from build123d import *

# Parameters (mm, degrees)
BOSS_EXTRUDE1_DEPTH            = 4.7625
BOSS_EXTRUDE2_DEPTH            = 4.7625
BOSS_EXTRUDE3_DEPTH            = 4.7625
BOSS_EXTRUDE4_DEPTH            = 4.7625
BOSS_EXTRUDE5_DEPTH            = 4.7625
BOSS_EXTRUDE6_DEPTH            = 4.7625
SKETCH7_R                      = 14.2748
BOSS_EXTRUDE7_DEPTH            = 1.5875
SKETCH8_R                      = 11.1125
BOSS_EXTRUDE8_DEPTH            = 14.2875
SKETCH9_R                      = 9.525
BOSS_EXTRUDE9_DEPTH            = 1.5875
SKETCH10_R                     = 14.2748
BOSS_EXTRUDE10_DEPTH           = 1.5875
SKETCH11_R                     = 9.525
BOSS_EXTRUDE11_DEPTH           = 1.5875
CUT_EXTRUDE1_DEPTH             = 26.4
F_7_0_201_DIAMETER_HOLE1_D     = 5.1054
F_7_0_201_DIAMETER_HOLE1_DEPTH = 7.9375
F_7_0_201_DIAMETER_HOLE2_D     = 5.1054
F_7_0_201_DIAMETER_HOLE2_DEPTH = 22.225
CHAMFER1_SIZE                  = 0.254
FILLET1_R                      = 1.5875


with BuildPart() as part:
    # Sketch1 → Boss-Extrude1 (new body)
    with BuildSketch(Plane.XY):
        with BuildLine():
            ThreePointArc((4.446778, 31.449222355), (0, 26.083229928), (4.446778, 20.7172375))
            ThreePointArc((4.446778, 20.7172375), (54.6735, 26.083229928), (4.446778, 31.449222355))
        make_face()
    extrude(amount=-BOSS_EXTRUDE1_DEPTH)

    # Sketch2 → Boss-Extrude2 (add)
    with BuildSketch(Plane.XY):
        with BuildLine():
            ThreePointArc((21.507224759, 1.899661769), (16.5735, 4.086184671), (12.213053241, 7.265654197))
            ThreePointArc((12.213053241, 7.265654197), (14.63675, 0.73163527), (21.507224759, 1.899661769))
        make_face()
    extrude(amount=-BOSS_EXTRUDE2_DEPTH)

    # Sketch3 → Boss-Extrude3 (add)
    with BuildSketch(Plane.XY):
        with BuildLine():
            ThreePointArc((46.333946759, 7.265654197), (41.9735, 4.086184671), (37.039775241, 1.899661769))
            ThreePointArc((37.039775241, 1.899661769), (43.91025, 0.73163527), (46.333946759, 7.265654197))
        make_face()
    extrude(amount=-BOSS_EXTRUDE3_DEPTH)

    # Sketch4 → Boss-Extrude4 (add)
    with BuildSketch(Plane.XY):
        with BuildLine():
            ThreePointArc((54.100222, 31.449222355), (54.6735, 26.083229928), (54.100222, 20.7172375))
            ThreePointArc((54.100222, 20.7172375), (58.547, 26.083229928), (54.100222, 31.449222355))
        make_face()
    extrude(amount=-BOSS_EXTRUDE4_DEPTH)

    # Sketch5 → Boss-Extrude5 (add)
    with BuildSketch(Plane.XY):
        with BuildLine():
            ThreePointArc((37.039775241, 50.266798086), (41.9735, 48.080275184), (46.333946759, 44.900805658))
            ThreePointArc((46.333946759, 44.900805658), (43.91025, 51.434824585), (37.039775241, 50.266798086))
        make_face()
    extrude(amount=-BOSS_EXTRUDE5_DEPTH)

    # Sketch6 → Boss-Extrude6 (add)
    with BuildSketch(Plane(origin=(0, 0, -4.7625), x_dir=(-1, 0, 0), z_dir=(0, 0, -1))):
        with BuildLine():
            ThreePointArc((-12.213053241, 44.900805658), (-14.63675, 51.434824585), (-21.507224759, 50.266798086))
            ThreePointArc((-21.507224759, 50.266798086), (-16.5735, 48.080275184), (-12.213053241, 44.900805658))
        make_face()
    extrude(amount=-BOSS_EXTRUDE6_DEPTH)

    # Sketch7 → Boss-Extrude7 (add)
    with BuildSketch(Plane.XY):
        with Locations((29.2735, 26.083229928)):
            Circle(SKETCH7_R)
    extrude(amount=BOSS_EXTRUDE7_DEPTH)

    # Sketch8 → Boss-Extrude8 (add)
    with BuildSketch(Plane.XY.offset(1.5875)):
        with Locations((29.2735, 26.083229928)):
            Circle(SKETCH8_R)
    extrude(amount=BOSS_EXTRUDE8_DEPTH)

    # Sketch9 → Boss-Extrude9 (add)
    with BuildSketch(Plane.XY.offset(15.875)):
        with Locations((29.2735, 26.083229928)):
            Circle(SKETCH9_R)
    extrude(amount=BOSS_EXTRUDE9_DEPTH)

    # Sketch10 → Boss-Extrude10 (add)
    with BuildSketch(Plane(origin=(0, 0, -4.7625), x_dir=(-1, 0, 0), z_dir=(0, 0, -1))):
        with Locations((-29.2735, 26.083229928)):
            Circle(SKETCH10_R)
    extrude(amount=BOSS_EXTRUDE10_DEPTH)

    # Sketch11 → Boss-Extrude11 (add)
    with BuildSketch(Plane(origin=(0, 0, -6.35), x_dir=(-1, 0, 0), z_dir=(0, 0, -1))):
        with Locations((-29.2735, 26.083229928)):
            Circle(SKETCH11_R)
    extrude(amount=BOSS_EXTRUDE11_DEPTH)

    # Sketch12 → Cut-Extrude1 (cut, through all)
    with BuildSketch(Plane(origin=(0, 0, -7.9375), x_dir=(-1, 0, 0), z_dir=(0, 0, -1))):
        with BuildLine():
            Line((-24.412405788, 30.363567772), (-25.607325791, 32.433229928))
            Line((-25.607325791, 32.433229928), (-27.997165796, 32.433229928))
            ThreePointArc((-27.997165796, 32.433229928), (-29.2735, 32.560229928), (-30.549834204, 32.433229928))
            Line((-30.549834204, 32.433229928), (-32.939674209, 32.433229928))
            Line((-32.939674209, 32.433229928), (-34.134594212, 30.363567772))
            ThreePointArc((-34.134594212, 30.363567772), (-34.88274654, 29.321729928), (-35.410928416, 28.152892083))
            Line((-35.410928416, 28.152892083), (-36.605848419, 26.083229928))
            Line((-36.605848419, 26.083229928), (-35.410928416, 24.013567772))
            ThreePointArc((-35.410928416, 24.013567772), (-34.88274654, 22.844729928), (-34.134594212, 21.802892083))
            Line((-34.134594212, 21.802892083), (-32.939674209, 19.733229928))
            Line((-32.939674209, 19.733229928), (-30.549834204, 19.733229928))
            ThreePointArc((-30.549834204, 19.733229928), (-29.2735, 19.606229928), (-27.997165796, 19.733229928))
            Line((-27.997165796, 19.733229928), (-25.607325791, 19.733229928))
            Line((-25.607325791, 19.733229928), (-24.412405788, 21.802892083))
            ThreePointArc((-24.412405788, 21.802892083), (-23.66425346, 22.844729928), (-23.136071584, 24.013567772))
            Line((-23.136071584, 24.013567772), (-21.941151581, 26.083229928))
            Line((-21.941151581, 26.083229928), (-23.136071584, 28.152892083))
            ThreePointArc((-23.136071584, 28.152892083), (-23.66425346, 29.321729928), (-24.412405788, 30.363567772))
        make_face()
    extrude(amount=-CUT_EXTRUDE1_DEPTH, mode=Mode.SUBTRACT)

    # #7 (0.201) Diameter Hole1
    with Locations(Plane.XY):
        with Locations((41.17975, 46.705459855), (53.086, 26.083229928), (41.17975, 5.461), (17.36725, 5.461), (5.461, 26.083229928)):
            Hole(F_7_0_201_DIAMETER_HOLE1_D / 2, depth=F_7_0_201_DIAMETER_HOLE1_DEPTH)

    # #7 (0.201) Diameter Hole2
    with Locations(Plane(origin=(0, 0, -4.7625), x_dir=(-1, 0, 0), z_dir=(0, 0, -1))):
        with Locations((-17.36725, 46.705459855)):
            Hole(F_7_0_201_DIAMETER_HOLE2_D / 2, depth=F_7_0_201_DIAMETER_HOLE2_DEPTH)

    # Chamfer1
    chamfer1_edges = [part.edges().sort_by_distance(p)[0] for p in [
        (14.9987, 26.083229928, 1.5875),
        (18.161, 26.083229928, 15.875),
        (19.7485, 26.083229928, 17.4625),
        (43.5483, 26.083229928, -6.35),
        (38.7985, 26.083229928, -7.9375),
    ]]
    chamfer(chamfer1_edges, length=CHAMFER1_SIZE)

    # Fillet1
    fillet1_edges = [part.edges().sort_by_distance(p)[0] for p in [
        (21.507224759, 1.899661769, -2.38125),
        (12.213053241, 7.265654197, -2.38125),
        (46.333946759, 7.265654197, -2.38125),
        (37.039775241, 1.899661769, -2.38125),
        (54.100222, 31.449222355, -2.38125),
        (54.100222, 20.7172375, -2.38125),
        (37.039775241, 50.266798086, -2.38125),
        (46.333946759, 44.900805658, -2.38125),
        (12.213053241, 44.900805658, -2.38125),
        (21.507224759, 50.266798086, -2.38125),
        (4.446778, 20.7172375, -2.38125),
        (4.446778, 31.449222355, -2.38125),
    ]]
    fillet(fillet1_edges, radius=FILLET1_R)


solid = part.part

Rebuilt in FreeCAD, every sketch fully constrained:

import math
import FreeCAD as App
import Part
import Sketcher
Q = App.Units.Quantity


def edges_at(feature, points):
    """Names of the edges that pass closest to the given points."""
    edges = feature.Shape.Edges
    near = lambda p: min(range(len(edges)), key=lambda i: edges[i].distToShape(Part.Vertex(*p))[0])
    return sorted({f"Edge{near(p) + 1}" for p in points})

doc = App.newDocument("Part")
body = doc.addObject("PartDesign::Body", "Body")

# Sketch on XY plane
sketch1 = doc.addObject("Sketcher::SketchObject", "Sketch")
body.addObject(sketch1)
sketch1.AttachmentSupport = (doc.XY_Plane, [""])
sketch1.MapMode = "FlatFace"
sketch1.addGeometry([
    Part.ArcOfCircle(Part.Circle(App.Vector(5, 26, 0), App.Vector(0, 0, 1), 5), math.radians(101), math.radians(259)),
    Part.ArcOfCircle(Part.Circle(App.Vector(29, 26, 0), App.Vector(0, 0, 1), 25), math.radians(-168), math.radians(168)),
], False)
sketch1.addConstraint([
    Sketcher.Constraint("Coincident", 0, 1, 1, 2),
    Sketcher.Constraint("Coincident", 1, 1, 0, 2),
    Sketcher.Constraint("Horizontal", 0, 3, 1, 3),
    Sketcher.Constraint("Radius", 1, Q("1 in")),
    Sketcher.Constraint("Radius", 0, Q("0.215 in")),
    Sketcher.Constraint("DistanceX", -1, 1, 0, 3, Q("0.215 in")),
    Sketcher.Constraint("DistanceX", 0, 3, 1, 3, Q("0.9375 in")),
    Sketcher.Constraint("DistanceY", -1, 1, 0, 3, 26.08323),
])
pad1 = doc.addObject("PartDesign::Pad", "Pad")
body.addObject(pad1)
pad1.Profile = sketch1
pad1.Length = Q("0.1875 in")
pad1.Reversed = True

# Sketch on XY plane
sketch2 = doc.addObject("Sketcher::SketchObject", "Sketch001")
body.addObject(sketch2)
sketch2.AttachmentSupport = (doc.XY_Plane, [""])
sketch2.MapMode = "FlatFace"
sketch2.addGeometry([
    Part.ArcOfCircle(Part.Circle(App.Vector(29, 26, 0), App.Vector(0, 0, 1), 25), math.radians(-132), math.radians(-108)),
    Part.ArcOfCircle(Part.Circle(App.Vector(17, 5, 0), App.Vector(0, 0, 1), 5), math.radians(161), math.radians(319)),
], False)
sketch2.addConstraint([
    Sketcher.Constraint("Coincident", 0, 1, 1, 1),
    Sketcher.Constraint("Coincident", 1, 2, 0, 2),
    Sketcher.Constraint("Radius", 0, Q("1 in")),
    Sketcher.Constraint("Radius", 1, Q("0.215 in")),
    Sketcher.Constraint("DistanceY", -1, 1, 1, 3, Q("0.215 in")),
    Sketcher.Constraint("DistanceX", 1, 3, 0, 3, Q("0.46875 in")),
    Sketcher.Constraint("DistanceX", -1, 1, 0, 3, Q("1.1525 in")),
    Sketcher.Constraint("DistanceY", -1, 1, 0, 3, 26.08323),
])
pad2 = doc.addObject("PartDesign::Pad", "Pad001")
body.addObject(pad2)
pad2.Profile = sketch2
pad2.Length = Q("0.1875 in")
pad2.Reversed = True

# Sketch on XY plane
sketch3 = doc.addObject("Sketcher::SketchObject", "Sketch002")
body.addObject(sketch3)
sketch3.AttachmentSupport = (doc.XY_Plane, [""])
sketch3.MapMode = "FlatFace"
sketch3.addGeometry([
    Part.ArcOfCircle(Part.Circle(App.Vector(29, 26, 0), App.Vector(0, 0, 1), 25), math.radians(-72), math.radians(-48)),
    Part.ArcOfCircle(Part.Circle(App.Vector(41, 5, 0), App.Vector(0, 0, 1), 5), math.radians(-139), math.radians(19)),
], False)
sketch3.addConstraint([
    Sketcher.Constraint("Coincident", 0, 1, 1, 1),
    Sketcher.Constraint("Coincident", 1, 2, 0, 2),
    Sketcher.Constraint("Radius", 0, Q("1 in")),
    Sketcher.Constraint("Radius", 1, Q("0.215 in")),
    Sketcher.Constraint("DistanceY", -1, 1, 1, 3, Q("0.215 in")),
    Sketcher.Constraint("DistanceX", 0, 3, 1, 3, Q("0.46875 in")),
    Sketcher.Constraint("DistanceX", -1, 1, 0, 3, Q("1.1525 in")),
    Sketcher.Constraint("DistanceY", -1, 1, 0, 3, 26.08323),
])
pad3 = doc.addObject("PartDesign::Pad", "Pad002")
body.addObject(pad3)
pad3.Profile = sketch3
pad3.Length = Q("0.1875 in")
pad3.Reversed = True

# Sketch on XY plane
sketch4 = doc.addObject("Sketcher::SketchObject", "Sketch003")
body.addObject(sketch4)
sketch4.AttachmentSupport = (doc.XY_Plane, [""])
sketch4.MapMode = "FlatFace"
sketch4.addGeometry([
    Part.ArcOfCircle(Part.Circle(App.Vector(29, 26, 0), App.Vector(0, 0, 1), 25), math.radians(-12), math.radians(12)),
    Part.ArcOfCircle(Part.Circle(App.Vector(53, 26, 0), App.Vector(0, 0, 1), 5), math.radians(-79), math.radians(79)),
], False)
sketch4.addConstraint([
    Sketcher.Constraint("Coincident", 0, 1, 1, 1),
    Sketcher.Constraint("Coincident", 1, 2, 0, 2),
    Sketcher.Constraint("Horizontal", 0, 3, 1, 3),
    Sketcher.Constraint("Radius", 0, Q("1 in")),
    Sketcher.Constraint("Radius", 1, Q("0.215 in")),
    Sketcher.Constraint("DistanceX", -1, 1, 1, 3, Q("2.09 in")),
    Sketcher.Constraint("DistanceX", 0, 3, 1, 3, Q("0.9375 in")),
    Sketcher.Constraint("DistanceY", -1, 1, 0, 3, 26.08323),
])
pad4 = doc.addObject("PartDesign::Pad", "Pad003")
body.addObject(pad4)
pad4.Profile = sketch4
pad4.Length = Q("0.1875 in")
pad4.Reversed = True

# Sketch on XY plane
sketch5 = doc.addObject("Sketcher::SketchObject", "Sketch004")
body.addObject(sketch5)
sketch5.AttachmentSupport = (doc.XY_Plane, [""])
sketch5.MapMode = "FlatFace"
sketch5.addGeometry([
    Part.ArcOfCircle(Part.Circle(App.Vector(29, 26, 0), App.Vector(0, 0, 1), 25), math.radians(48), math.radians(72)),
    Part.ArcOfCircle(Part.Circle(App.Vector(41, 47, 0), App.Vector(0, 0, 1), 5), math.radians(-19), math.radians(139)),
], False)
sketch5.addConstraint([
    Sketcher.Constraint("Coincident", 0, 1, 1, 1),
    Sketcher.Constraint("Coincident", 1, 2, 0, 2),
    Sketcher.Constraint("Radius", 0, Q("1 in")),
    Sketcher.Constraint("Radius", 1, Q("0.215 in")),
    Sketcher.Constraint("DistanceX", 0, 3, 1, 3, Q("0.46875 in")),
    Sketcher.Constraint("DistanceX", -1, 1, 0, 3, Q("1.1525 in")),
    Sketcher.Constraint("DistanceY", -1, 1, 1, 2, 50.266798),
    Sketcher.Constraint("DistanceY", -1, 1, 0, 3, 26.08323),
])
pad5 = doc.addObject("PartDesign::Pad", "Pad004")
body.addObject(pad5)
pad5.Profile = sketch5
pad5.Length = Q("0.1875 in")
pad5.Reversed = True

# Sketch on XY plane
sketch6 = doc.addObject("Sketcher::SketchObject", "Sketch005")
body.addObject(sketch6)
sketch6.AttachmentSupport = (doc.XY_Plane, [""])
sketch6.MapMode = "FlatFace"
sketch6.AttachmentOffset = App.Placement(App.Vector(0, 0, -0.1875 * 25.4), App.Rotation())
sketch6.addGeometry([
    Part.ArcOfCircle(Part.Circle(App.Vector(17, 47, 0), App.Vector(0, 0, 1), 5), math.radians(41), math.radians(199)),
    Part.ArcOfCircle(Part.Circle(App.Vector(29, 26, 0), App.Vector(0, 0, 1), 25), math.radians(108), math.radians(132)),
], False)
sketch6.addConstraint([
    Sketcher.Constraint("Coincident", 0, 1, 1, 1),
    Sketcher.Constraint("Coincident", 1, 2, 0, 2),
    Sketcher.Constraint("Radius", 1, Q("1 in")),
    Sketcher.Constraint("Radius", 0, Q("0.215 in")),
    Sketcher.Constraint("DistanceX", 0, 3, 1, 3, Q("0.46875 in")),
    Sketcher.Constraint("DistanceX", -1, 1, 1, 3, Q("1.1525 in")),
    Sketcher.Constraint("DistanceY", -1, 1, 0, 1, 50.266798),
    Sketcher.Constraint("DistanceY", -1, 1, 0, 3, 46.70546),
])
pad6 = doc.addObject("PartDesign::Pad", "Pad005")
body.addObject(pad6)
pad6.Profile = sketch6
pad6.Length = Q("0.1875 in")

# Sketch on XY plane
sketch7 = doc.addObject("Sketcher::SketchObject", "Sketch006")
body.addObject(sketch7)
sketch7.AttachmentSupport = (doc.XY_Plane, [""])
sketch7.MapMode = "FlatFace"
sketch7.addGeometry(Part.Circle(App.Vector(29, 26, 0), App.Vector(0, 0, 1), 14), False)
sketch7.addConstraint([
    Sketcher.Constraint("Diameter", 0, Q("1.124 in")),
    Sketcher.Constraint("DistanceX", -1, 1, 0, 3, Q("1.1525 in")),
    Sketcher.Constraint("DistanceY", -1, 1, 0, 3, 26.08323),
])
pad7 = doc.addObject("PartDesign::Pad", "Pad006")
body.addObject(pad7)
pad7.Profile = sketch7
pad7.Length = Q("0.0625 in")

# Sketch on XY plane
sketch8 = doc.addObject("Sketcher::SketchObject", "Sketch007")
body.addObject(sketch8)
sketch8.AttachmentSupport = (doc.XY_Plane, [""])
sketch8.MapMode = "FlatFace"
sketch8.AttachmentOffset = App.Placement(App.Vector(0, 0, 0.0625 * 25.4), App.Rotation())
sketch8.addGeometry(Part.Circle(App.Vector(29, 26, 0), App.Vector(0, 0, 1), 11), False)
sketch8.addConstraint([
    Sketcher.Constraint("Diameter", 0, Q("0.875 in")),
    Sketcher.Constraint("DistanceX", -1, 1, 0, 3, Q("1.1525 in")),
    Sketcher.Constraint("DistanceY", -1, 1, 0, 3, 26.08323),
])
pad8 = doc.addObject("PartDesign::Pad", "Pad007")
body.addObject(pad8)
pad8.Profile = sketch8
pad8.Length = Q("0.5625 in")

# Sketch on XY plane
sketch9 = doc.addObject("Sketcher::SketchObject", "Sketch008")
body.addObject(sketch9)
sketch9.AttachmentSupport = (doc.XY_Plane, [""])
sketch9.MapMode = "FlatFace"
sketch9.AttachmentOffset = App.Placement(App.Vector(0, 0, 0.625 * 25.4), App.Rotation())
sketch9.addGeometry(Part.Circle(App.Vector(29, 26, 0), App.Vector(0, 0, 1), 10), False)
sketch9.addConstraint([
    Sketcher.Constraint("Diameter", 0, Q("0.75 in")),
    Sketcher.Constraint("DistanceX", -1, 1, 0, 3, Q("1.1525 in")),
    Sketcher.Constraint("DistanceY", -1, 1, 0, 3, 26.08323),
])
pad9 = doc.addObject("PartDesign::Pad", "Pad008")
body.addObject(pad9)
pad9.Profile = sketch9
pad9.Length = Q("0.0625 in")

# Sketch on XY plane
sketch10 = doc.addObject("Sketcher::SketchObject", "Sketch009")
body.addObject(sketch10)
sketch10.AttachmentSupport = (doc.XY_Plane, [""])
sketch10.MapMode = "FlatFace"
sketch10.AttachmentOffset = App.Placement(App.Vector(0, 0, -0.1875 * 25.4), App.Rotation())
sketch10.addGeometry(Part.Circle(App.Vector(29, 26, 0), App.Vector(0, 0, 1), 14), False)
sketch10.addConstraint([
    Sketcher.Constraint("Diameter", 0, Q("1.124 in")),
    Sketcher.Constraint("DistanceX", -1, 1, 0, 3, Q("1.1525 in")),
    Sketcher.Constraint("DistanceY", -1, 1, 0, 3, 26.08323),
])
pad10 = doc.addObject("PartDesign::Pad", "Pad009")
body.addObject(pad10)
pad10.Profile = sketch10
pad10.Length = Q("0.0625 in")
pad10.Reversed = True

# Sketch on XY plane
sketch11 = doc.addObject("Sketcher::SketchObject", "Sketch010")
body.addObject(sketch11)
sketch11.AttachmentSupport = (doc.XY_Plane, [""])
sketch11.MapMode = "FlatFace"
sketch11.AttachmentOffset = App.Placement(App.Vector(0, 0, -0.25 * 25.4), App.Rotation())
sketch11.addGeometry(Part.Circle(App.Vector(29, 26, 0), App.Vector(0, 0, 1), 10), False)
sketch11.addConstraint([
    Sketcher.Constraint("Diameter", 0, Q("0.75 in")),
    Sketcher.Constraint("DistanceX", -1, 1, 0, 3, Q("1.1525 in")),
    Sketcher.Constraint("DistanceY", -1, 1, 0, 3, 26.08323),
])
pad11 = doc.addObject("PartDesign::Pad", "Pad010")
body.addObject(pad11)
pad11.Profile = sketch11
pad11.Length = Q("0.0625 in")
pad11.Reversed = True

# Sketch on XY plane
sketch12 = doc.addObject("Sketcher::SketchObject", "Sketch011")
body.addObject(sketch12)
sketch12.AttachmentSupport = (doc.XY_Plane, [""])
sketch12.MapMode = "FlatFace"
sketch12.AttachmentOffset = App.Placement(App.Vector(0, 0, -0.3125 * 25.4), App.Rotation())
sketch12.addGeometry([
    Part.LineSegment(App.Vector(24.4, 30.4, 0), App.Vector(25.6, 32.4, 0)),  # 0
    Part.LineSegment(App.Vector(25.6, 32.4, 0), App.Vector(28, 32.4, 0)),  # 1
    Part.ArcOfCircle(Part.Circle(App.Vector(29.3, 26.1, 0), App.Vector(0, 0, 1), 6.5), math.radians(79), math.radians(101)),  # 2
    Part.LineSegment(App.Vector(30.5, 32.4, 0), App.Vector(32.9, 32.4, 0)),  # 3
    Part.LineSegment(App.Vector(32.9, 32.4, 0), App.Vector(34.1, 30.4, 0)),  # 4
    Part.ArcOfCircle(Part.Circle(App.Vector(29.3, 26.1, 0), App.Vector(0, 0, 1), 6.5), math.radians(19), math.radians(41)),  # 5
    Part.LineSegment(App.Vector(35.4, 28.2, 0), App.Vector(36.6, 26.1, 0)),  # 6
    Part.LineSegment(App.Vector(36.6, 26.1, 0), App.Vector(35.4, 24, 0)),  # 7
    Part.ArcOfCircle(Part.Circle(App.Vector(29.3, 26.1, 0), App.Vector(0, 0, 1), 6.5), math.radians(-41), math.radians(-19)),  # 8
    Part.LineSegment(App.Vector(34.1, 21.8, 0), App.Vector(32.9, 19.7, 0)),  # 9
    Part.LineSegment(App.Vector(32.9, 19.7, 0), App.Vector(30.5, 19.7, 0)),  # 10
    Part.ArcOfCircle(Part.Circle(App.Vector(29.3, 26.1, 0), App.Vector(0, 0, 1), 6.5), math.radians(-101), math.radians(-79)),  # 11
    Part.LineSegment(App.Vector(28, 19.7, 0), App.Vector(25.6, 19.7, 0)),  # 12
    Part.LineSegment(App.Vector(25.6, 19.7, 0), App.Vector(24.4, 21.8, 0)),  # 13
    Part.ArcOfCircle(Part.Circle(App.Vector(29.3, 26.1, 0), App.Vector(0, 0, 1), 6.5), math.radians(-161), math.radians(-139)),  # 14
    Part.LineSegment(App.Vector(23.1, 24, 0), App.Vector(21.9, 26.1, 0)),  # 15
    Part.LineSegment(App.Vector(21.9, 26.1, 0), App.Vector(23.1, 28.2, 0)),  # 16
    Part.ArcOfCircle(Part.Circle(App.Vector(29.3, 26.1, 0), App.Vector(0, 0, 1), 6.5), math.radians(139), math.radians(161)),  # 17
], False)
sketch12.addConstraint([
    Sketcher.Constraint("Coincident", 0, 2, 1, 1),
    Sketcher.Constraint("Coincident", 1, 2, 2, 2),
    Sketcher.Constraint("Coincident", 2, 1, 3, 1),
    Sketcher.Constraint("Coincident", 3, 2, 4, 1),
    Sketcher.Constraint("Coincident", 4, 2, 5, 2),
    Sketcher.Constraint("Coincident", 5, 1, 6, 1),
    Sketcher.Constraint("Coincident", 6, 2, 7, 1),
    Sketcher.Constraint("Coincident", 7, 2, 8, 2),
    Sketcher.Constraint("Coincident", 8, 1, 9, 1),
    Sketcher.Constraint("Coincident", 9, 2, 10, 1),
    Sketcher.Constraint("Coincident", 10, 2, 11, 2),
    Sketcher.Constraint("Coincident", 11, 1, 12, 1),
    Sketcher.Constraint("Coincident", 12, 2, 13, 1),
    Sketcher.Constraint("Coincident", 13, 2, 14, 2),
    Sketcher.Constraint("Coincident", 14, 1, 15, 1),
    Sketcher.Constraint("Coincident", 15, 2, 16, 1),
    Sketcher.Constraint("Coincident", 16, 2, 17, 2),
    Sketcher.Constraint("Coincident", 17, 1, 0, 1),
    Sketcher.Constraint("Horizontal", 1),
    Sketcher.Constraint("Horizontal", 3),
    Sketcher.Constraint("Horizontal", 10),
    Sketcher.Constraint("Horizontal", 12),
    Sketcher.Constraint("Coincident", 5, 3, 2, 3),
    Sketcher.Constraint("Coincident", 8, 3, 2, 3),
    Sketcher.Constraint("Coincident", 11, 3, 2, 3),
    Sketcher.Constraint("Coincident", 14, 3, 2, 3),
    Sketcher.Constraint("Coincident", 17, 3, 2, 3),
    Sketcher.Constraint("Equal", 2, 5),
    Sketcher.Constraint("Equal", 5, 8),
    Sketcher.Constraint("Equal", 8, 11),
    Sketcher.Constraint("Equal", 11, 14),
    Sketcher.Constraint("Equal", 14, 17),
    Sketcher.Constraint("Parallel", 4, 6),
    Sketcher.Constraint("Parallel", 0, 7),
    Sketcher.Constraint("Parallel", 7, 9),
    Sketcher.Constraint("Parallel", 6, 13),
    Sketcher.Constraint("Parallel", 13, 15),
    Sketcher.Constraint("Parallel", 9, 16),
    Sketcher.Constraint("Horizontal", 1, 2, 2, 1),
    Sketcher.Constraint("Horizontal", 17, 3, 6, 2),
    Sketcher.Constraint("Horizontal", 10, 2, 11, 1),
    Sketcher.Constraint("Horizontal", 8, 1, 13, 2),
    Sketcher.Constraint("Horizontal", 7, 2, 14, 1),
    Sketcher.Constraint("Horizontal", 6, 2, 15, 2),
    Sketcher.Constraint("Horizontal", 5, 1, 16, 2),
    Sketcher.Constraint("Horizontal", 4, 2, 17, 1),
    Sketcher.Constraint("Vertical", 4, 2, 8, 1),
    Sketcher.Constraint("Vertical", 3, 2, 9, 2),
    Sketcher.Constraint("Equal", 4, 6),
    Sketcher.Constraint("Angle", 0, Q("60 deg")),
    Sketcher.Constraint("Radius", 2, Q("0.255 in")),
    Sketcher.Constraint("DistanceY", 8, 3, 0, 2, Q("0.25 in")),
    Sketcher.Constraint("DistanceX", -1, 1, 2, 3, Q("1.1525 in")),
    Sketcher.Constraint("DistanceX", 1, 1, 1, 2, 2.38984),
    Sketcher.Constraint("DistanceY", -1, 1, 2, 3, 26.08323),
])
pocket1 = doc.addObject("PartDesign::Pocket", "Pocket")
body.addObject(pocket1)
pocket1.Profile = sketch12
pocket1.Type = "ThroughAll"
pocket1.Reversed = True

# Sketch on XY plane
sketch13 = doc.addObject("Sketcher::SketchObject", "Sketch012")
body.addObject(sketch13)
sketch13.AttachmentSupport = (doc.XY_Plane, [""])
sketch13.MapMode = "FlatFace"
sketch13.addGeometry([
    Part.Circle(App.Vector(41.2, 46.7, 0), App.Vector(0, 0, 1), 2.6),  # 0
    Part.Circle(App.Vector(53.1, 26.1, 0), App.Vector(0, 0, 1), 2.6),  # 1
    Part.Circle(App.Vector(41.2, 5.5, 0), App.Vector(0, 0, 1), 2.6),  # 2
    Part.Circle(App.Vector(17.4, 5.5, 0), App.Vector(0, 0, 1), 2.6),  # 3
    Part.Circle(App.Vector(5.5, 26.1, 0), App.Vector(0, 0, 1), 2.6),  # 4
], False)
sketch13.addConstraint([
    Sketcher.Constraint("Equal", 0, 1),
    Sketcher.Constraint("Equal", 1, 2),
    Sketcher.Constraint("Equal", 2, 3),
    Sketcher.Constraint("Equal", 3, 4),
    Sketcher.Constraint("Horizontal", 2, 3, 3, 3),
    Sketcher.Constraint("Horizontal", 1, 3, 4, 3),
    Sketcher.Constraint("Vertical", 0, 3, 2, 3),
    Sketcher.Constraint("Diameter", 0, Q("0.201 in")),
    Sketcher.Constraint("DistanceX", -1, 1, 1, 3, Q("2.09 in")),
    Sketcher.Constraint("DistanceY", -1, 1, 2, 3, Q("0.215 in")),
    Sketcher.Constraint("DistanceX", -1, 1, 4, 3, Q("0.215 in")),
    Sketcher.Constraint("DistanceX", 0, 3, 1, 3, Q("0.46875 in")),
    Sketcher.Constraint("DistanceX", 3, 3, 2, 3, Q("0.9375 in")),
    Sketcher.Constraint("DistanceY", -1, 1, 0, 3, 46.70546),
    Sketcher.Constraint("DistanceY", -1, 1, 1, 3, 26.08323),
])
doc.recompute()
hole = doc.addObject("PartDesign::Hole", "Hole")
body.addObject(hole)
hole.Profile = sketch13
hole.ThreadType = "None"
hole.Diameter = Q("0.201 in")
hole.DepthType = "Dimension"
hole.Depth = Q("0.3125 in")
hole.DrillPoint = "Flat"

# Sketch on XY plane
sketch14 = doc.addObject("Sketcher::SketchObject", "Sketch013")
body.addObject(sketch14)
sketch14.AttachmentSupport = (doc.XY_Plane, [""])
sketch14.MapMode = "FlatFace"
sketch14.AttachmentOffset = App.Placement(App.Vector(0, 0, -0.1875 * 25.4), App.Rotation())
sketch14.addGeometry(Part.Circle(App.Vector(17.4, 46.7, 0), App.Vector(0, 0, 1), 2.6), False)
sketch14.addConstraint([
    Sketcher.Constraint("Diameter", 0, Q("0.201 in")),
    Sketcher.Constraint("DistanceX", -1, 1, 0, 3, 17.36725),
    Sketcher.Constraint("DistanceY", -1, 1, 0, 3, 46.70546),
])
doc.recompute()
hole2 = doc.addObject("PartDesign::Hole", "Hole001")
body.addObject(hole2)
hole2.Profile = sketch14
hole2.ThreadType = "None"
hole2.Diameter = Q("0.201 in")
hole2.DepthType = "Dimension"
hole2.Depth = Q("0.875 in")
hole2.DrillPoint = "Flat"
hole2.Reversed = True
doc.recompute()

chamfer = doc.addObject("PartDesign::Chamfer", "Chamfer")
body.addObject(chamfer)
chamfer.Base = (hole2, edges_at(hole2, [
    (14.999, 26.083, 1.587),
    (18.161, 26.083, 15.875),
    (19.748, 26.083, 17.462),
    (43.548, 26.083, -6.35),
    (38.798, 26.083, -7.938),
]))
chamfer.Size = Q("0.01 in")
doc.recompute()

fillet = doc.addObject("PartDesign::Fillet", "Fillet")
body.addObject(fillet)
fillet.Base = (chamfer, edges_at(chamfer, [
    (21.507, 1.9, -2.381),
    (12.213, 7.266, -2.381),
    (46.334, 7.266, -2.381),
    (37.04, 1.9, -2.381),
    (54.1, 31.449, -2.381),
    (54.1, 20.717, -2.381),
    (37.04, 50.267, -2.381),
    (46.334, 44.901, -2.381),
    (12.213, 44.901, -2.381),
    (21.507, 50.267, -2.381),
    (4.447, 20.717, -2.381),
    (4.447, 31.449, -2.381),
]))
fillet.Radius = Q("0.0625 in")

doc.recompute()
